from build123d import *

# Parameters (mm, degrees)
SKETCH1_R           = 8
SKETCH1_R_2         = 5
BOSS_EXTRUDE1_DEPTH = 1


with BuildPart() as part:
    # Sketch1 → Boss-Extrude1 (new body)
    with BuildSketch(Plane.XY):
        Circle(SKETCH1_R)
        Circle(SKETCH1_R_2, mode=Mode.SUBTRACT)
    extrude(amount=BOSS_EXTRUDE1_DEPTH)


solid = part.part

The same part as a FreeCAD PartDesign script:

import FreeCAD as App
import Part
import Sketcher

V = App.Vector

doc = App.newDocument("Part")
body = doc.addObject("PartDesign::Body", "Body")

sketch1 = doc.addObject("Sketcher::SketchObject", "Sketch")
body.addObject(sketch1)
sketch1.AttachmentSupport = (doc.XY_Plane, [""])
sketch1.MapMode = "FlatFace"
sketch1.addGeometry(Part.Circle(V(0, 0, 0), V(0, 0, 1), 8), False)
sketch1.addGeometry(Part.Circle(V(0, 0, 0), V(0, 0, 1), 5), False)
sketch1.addConstraint(Sketcher.Constraint("Coincident", 0, 3, -1, 1))
sketch1.addConstraint(Sketcher.Constraint("Coincident", 1, 3, -1, 1))
sketch1.addConstraint(Sketcher.Constraint("Diameter", 0, 16.0))
sketch1.addConstraint(Sketcher.Constraint("Diameter", 1, 10.0))
pad1 = doc.addObject("PartDesign::Pad", "Pad")
body.addObject(pad1)
pad1.Profile = sketch1
pad1.Length = 1

doc.recompute()
